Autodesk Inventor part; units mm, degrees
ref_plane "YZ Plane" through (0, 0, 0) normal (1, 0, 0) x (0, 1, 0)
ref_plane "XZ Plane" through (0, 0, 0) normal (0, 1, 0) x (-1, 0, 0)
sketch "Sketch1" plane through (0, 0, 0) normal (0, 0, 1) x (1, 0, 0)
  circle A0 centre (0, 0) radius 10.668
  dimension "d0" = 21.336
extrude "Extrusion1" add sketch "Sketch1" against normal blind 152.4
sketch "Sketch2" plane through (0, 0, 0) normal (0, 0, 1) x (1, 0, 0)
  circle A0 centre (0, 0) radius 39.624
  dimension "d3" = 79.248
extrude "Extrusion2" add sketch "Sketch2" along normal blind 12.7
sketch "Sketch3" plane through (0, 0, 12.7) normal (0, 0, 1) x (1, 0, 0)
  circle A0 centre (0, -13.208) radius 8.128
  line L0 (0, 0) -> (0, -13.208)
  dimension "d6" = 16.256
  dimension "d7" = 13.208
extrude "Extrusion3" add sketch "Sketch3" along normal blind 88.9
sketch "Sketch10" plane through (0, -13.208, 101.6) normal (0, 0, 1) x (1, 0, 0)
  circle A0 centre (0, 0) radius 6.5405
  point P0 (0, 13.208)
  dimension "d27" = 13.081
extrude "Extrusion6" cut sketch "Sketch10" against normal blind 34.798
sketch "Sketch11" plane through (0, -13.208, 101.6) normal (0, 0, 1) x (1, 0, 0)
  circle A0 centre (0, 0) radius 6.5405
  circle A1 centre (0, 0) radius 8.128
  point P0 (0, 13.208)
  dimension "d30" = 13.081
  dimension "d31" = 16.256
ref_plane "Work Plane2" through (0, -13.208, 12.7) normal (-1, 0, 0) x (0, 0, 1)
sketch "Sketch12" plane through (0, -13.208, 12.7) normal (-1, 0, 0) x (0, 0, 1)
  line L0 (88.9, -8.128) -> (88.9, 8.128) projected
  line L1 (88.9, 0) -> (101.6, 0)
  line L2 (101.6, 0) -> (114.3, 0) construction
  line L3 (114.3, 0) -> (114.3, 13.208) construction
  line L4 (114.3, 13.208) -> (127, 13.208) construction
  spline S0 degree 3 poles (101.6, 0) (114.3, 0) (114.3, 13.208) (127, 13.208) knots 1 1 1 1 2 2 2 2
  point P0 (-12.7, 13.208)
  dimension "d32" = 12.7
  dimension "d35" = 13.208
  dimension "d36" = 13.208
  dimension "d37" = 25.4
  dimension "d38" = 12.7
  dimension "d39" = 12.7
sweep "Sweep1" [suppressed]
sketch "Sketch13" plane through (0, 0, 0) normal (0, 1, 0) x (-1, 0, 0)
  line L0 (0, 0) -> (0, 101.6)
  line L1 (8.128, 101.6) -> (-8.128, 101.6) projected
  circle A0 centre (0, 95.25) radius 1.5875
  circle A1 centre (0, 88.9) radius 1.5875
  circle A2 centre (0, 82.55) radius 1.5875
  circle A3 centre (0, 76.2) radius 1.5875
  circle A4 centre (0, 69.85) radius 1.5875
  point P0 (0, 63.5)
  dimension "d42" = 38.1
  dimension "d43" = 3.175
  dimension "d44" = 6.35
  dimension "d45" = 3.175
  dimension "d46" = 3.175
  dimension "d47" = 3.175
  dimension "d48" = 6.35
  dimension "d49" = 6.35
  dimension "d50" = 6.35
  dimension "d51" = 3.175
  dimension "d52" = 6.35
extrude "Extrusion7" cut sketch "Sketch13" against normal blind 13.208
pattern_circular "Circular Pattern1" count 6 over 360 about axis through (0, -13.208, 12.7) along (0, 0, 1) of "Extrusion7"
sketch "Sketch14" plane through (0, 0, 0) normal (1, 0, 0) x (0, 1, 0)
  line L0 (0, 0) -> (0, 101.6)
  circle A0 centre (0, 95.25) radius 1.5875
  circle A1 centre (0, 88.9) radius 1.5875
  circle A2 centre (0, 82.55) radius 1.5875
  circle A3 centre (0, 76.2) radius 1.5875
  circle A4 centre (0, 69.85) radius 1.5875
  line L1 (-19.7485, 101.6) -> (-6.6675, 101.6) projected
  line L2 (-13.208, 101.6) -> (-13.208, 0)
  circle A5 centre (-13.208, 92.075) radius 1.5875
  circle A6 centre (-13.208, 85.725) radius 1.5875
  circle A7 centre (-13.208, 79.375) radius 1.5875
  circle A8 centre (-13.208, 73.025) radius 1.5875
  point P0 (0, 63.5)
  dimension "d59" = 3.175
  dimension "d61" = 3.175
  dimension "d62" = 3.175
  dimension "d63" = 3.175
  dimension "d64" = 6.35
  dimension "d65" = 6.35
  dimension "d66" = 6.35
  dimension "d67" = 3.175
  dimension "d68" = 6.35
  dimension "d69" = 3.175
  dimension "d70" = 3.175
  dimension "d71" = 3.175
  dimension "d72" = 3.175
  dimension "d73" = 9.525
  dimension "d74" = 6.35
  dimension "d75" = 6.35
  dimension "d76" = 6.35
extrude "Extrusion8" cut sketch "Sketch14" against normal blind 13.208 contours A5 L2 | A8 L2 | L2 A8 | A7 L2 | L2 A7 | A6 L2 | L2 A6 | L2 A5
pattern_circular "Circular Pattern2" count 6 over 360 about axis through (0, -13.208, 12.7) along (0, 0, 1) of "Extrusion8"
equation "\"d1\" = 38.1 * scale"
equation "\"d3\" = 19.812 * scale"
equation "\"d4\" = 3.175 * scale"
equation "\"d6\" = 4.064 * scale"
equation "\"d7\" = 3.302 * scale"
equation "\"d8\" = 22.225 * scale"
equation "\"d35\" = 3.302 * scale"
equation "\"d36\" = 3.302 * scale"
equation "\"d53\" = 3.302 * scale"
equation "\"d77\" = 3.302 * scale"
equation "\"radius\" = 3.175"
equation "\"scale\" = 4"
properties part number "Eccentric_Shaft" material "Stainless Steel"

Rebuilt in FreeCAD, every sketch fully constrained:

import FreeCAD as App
import Part
import Sketcher
from FreeCAD import Vector
Q = App.Units.Quantity

doc = App.newDocument("Part")
body = doc.addObject("PartDesign::Body", "Body")

# Sketch on XY plane
sketch1 = body.newObject("Sketcher::SketchObject", "Sketch")
sketch1.AttachmentSupport = (doc.getObject("XY_Plane"), [""])
sketch1.MapMode = "FlatFace"
sketch1.addGeometry(Part.Circle(Vector(0, 0, 0), Vector(0, 0, 1), 11), False)
sketch1.addConstraint(Sketcher.Constraint("Coincident", 0, 3, -1, 1))
sketch1.addConstraint(Sketcher.Constraint("Diameter", 0, Q("0.84 in")))
pad1 = body.newObject("PartDesign::Pad", "Pad")
pad1.Profile = sketch1
pad1.Length = Q("6 in")
pad1.Reversed = True

# Sketch on XY plane
sketch2 = body.newObject("Sketcher::SketchObject", "Sketch001")
sketch2.AttachmentSupport = (doc.getObject("XY_Plane"), [""])
sketch2.MapMode = "FlatFace"
sketch2.addGeometry(Part.Circle(Vector(0, 0, 0), Vector(0, 0, 1), 40), False)
sketch2.addConstraint(Sketcher.Constraint("Coincident", 0, 3, -1, 1))
sketch2.addConstraint(Sketcher.Constraint("Diameter", 0, Q("3.12 in")))
pad2 = body.newObject("PartDesign::Pad", "Pad001")
pad2.Profile = sketch2
pad2.Length = Q("0.5 in")

# Sketch on XY plane
sketch3 = body.newObject("Sketcher::SketchObject", "Sketch002")
sketch3.AttachmentSupport = (doc.getObject("XY_Plane"), [""])
sketch3.MapMode = "FlatFace"
sketch3.AttachmentOffset = App.Placement(Vector(0, 0, 0.5 * 25.4), App.Rotation())
sketch3.addGeometry(Part.Circle(Vector(0, -13, 0), Vector(0, 0, 1), 8), False)
sketch3.addConstraint(Sketcher.Constraint("PointOnObject", 0, 3, -2))
sketch3.addConstraint(Sketcher.Constraint("Diameter", 0, Q("0.64 in")))
sketch3.addConstraint(Sketcher.Constraint("DistanceY", 0, 3, -1, 1, Q("0.52 in")))
pad3 = body.newObject("PartDesign::Pad", "Pad002")
pad3.Profile = sketch3
pad3.Length = Q("3.5 in")

# Sketch on XY plane
sketch4 = body.newObject("Sketcher::SketchObject", "Sketch003")
sketch4.AttachmentSupport = (doc.getObject("XY_Plane"), [""])
sketch4.MapMode = "FlatFace"
sketch4.AttachmentOffset = App.Placement(Vector(0, 0, 4 * 25.4), App.Rotation())
sketch4.addGeometry(Part.Circle(Vector(0, -13, 0), Vector(0, 0, 1), 7), False)
sketch4.addConstraint(Sketcher.Constraint("PointOnObject", 0, 3, -2))
sketch4.addConstraint(Sketcher.Constraint("Diameter", 0, Q("0.515 in")))
sketch4.addConstraint(Sketcher.Constraint("DistanceY", 0, 3, -1, 1, Q("0.52 in")))
pocket1 = body.newObject("PartDesign::Pocket", "Pocket")
pocket1.Profile = sketch4
pocket1.Length = Q("1.37 in")

# Sketch on XZ plane
sketch5 = body.newObject("Sketcher::SketchObject", "Sketch004")
sketch5.AttachmentSupport = (doc.getObject("XZ_Plane"), [""])
sketch5.MapMode = "FlatFace"
sketch5.addGeometry(Part.Circle(Vector(0, 69.8, 0), Vector(0, 0, 1), 1.6), False)
sketch5.addGeometry(Part.Circle(Vector(0, 95.2, 0), Vector(0, 0, 1), 1.6), False)
sketch5.addGeometry(Part.Circle(Vector(0, 88.9, 0), Vector(0, 0, 1), 1.6), False)
sketch5.addGeometry(Part.Circle(Vector(0, 82.5, 0), Vector(0, 0, 1), 1.6), False)
sketch5.addGeometry(Part.Circle(Vector(0, 76.2, 0), Vector(0, 0, 1), 1.6), False)
sketch5.addConstraint(Sketcher.Constraint("Equal", 0, 1))
sketch5.addConstraint(Sketcher.Constraint("Equal", 1, 2))
sketch5.addConstraint(Sketcher.Constraint("Equal", 2, 3))
sketch5.addConstraint(Sketcher.Constraint("Equal", 3, 4))
sketch5.addConstraint(Sketcher.Constraint("PointOnObject", 0, 3, -2))
sketch5.addConstraint(Sketcher.Constraint("PointOnObject", 1, 3, -2))
sketch5.addConstraint(Sketcher.Constraint("PointOnObject", 2, 3, -2))
sketch5.addConstraint(Sketcher.Constraint("PointOnObject", 3, 3, -2))
sketch5.addConstraint(Sketcher.Constraint("PointOnObject", 4, 3, -2))
sketch5.addConstraint(Sketcher.Constraint("Diameter", 0, Q("0.125 in")))
sketch5.addConstraint(Sketcher.Constraint("DistanceY", 2, 3, 1, 3, Q("0.25 in")))
sketch5.addConstraint(Sketcher.Constraint("DistanceY", 3, 3, 2, 3, Q("0.25 in")))
sketch5.addConstraint(Sketcher.Constraint("DistanceY", 4, 3, 3, 3, Q("0.25 in")))
sketch5.addConstraint(Sketcher.Constraint("DistanceY", 0, 3, 4, 3, Q("0.25 in")))
sketch5.addConstraint(Sketcher.Constraint("DistanceY", -1, 1, 4, 3, Q("3 in")))
pocket2 = body.newObject("PartDesign::Pocket", "Pocket001")
pocket2.Profile = sketch5
pocket2.Length = Q("0.52 in")
pocket2.Reversed = True
doc.recompute()

datumline = body.newObject("PartDesign::Line", "DatumLine")
datumline.Placement = App.Placement(Vector(0, -13.208, 0), App.Rotation(Vector(0, 0, 1), Vector(0, 0, 1)))
polarpattern = body.newObject("PartDesign::PolarPattern", "PolarPattern")
polarpattern.Originals = [pocket2]
polarpattern.Axis = (datumline, [""])
polarpattern.Angle = 360
polarpattern.Occurrences = 6
body.Tip = polarpattern

# Sketch on YZ plane
sketch6 = body.newObject("Sketcher::SketchObject", "Sketch005")
sketch6.AttachmentSupport = (doc.getObject("YZ_Plane"), [""])
sketch6.MapMode = "FlatFace"
sketch6.addGeometry(Part.Circle(Vector(-13.2, 92.1, 0), Vector(0, 0, 1), 1.6), False)
sketch6.addGeometry(Part.Circle(Vector(-13.2, 73, 0), Vector(0, 0, 1), 1.6), False)
sketch6.addGeometry(Part.Circle(Vector(-13.2, 79.4, 0), Vector(0, 0, 1), 1.6), False)
sketch6.addGeometry(Part.Circle(Vector(-13.2, 85.7, 0), Vector(0, 0, 1), 1.6), False)
sketch6.addConstraint(Sketcher.Constraint("Equal", 0, 1))
sketch6.addConstraint(Sketcher.Constraint("Equal", 1, 2))
sketch6.addConstraint(Sketcher.Constraint("Equal", 2, 3))
sketch6.addConstraint(Sketcher.Constraint("Vertical", 0, 3, 1, 3))
sketch6.addConstraint(Sketcher.Constraint("Vertical", 1, 3, 2, 3))
sketch6.addConstraint(Sketcher.Constraint("Vertical", 2, 3, 3, 3))
sketch6.addConstraint(Sketcher.Constraint("Diameter", 0, Q("0.125 in")))
sketch6.addConstraint(Sketcher.Constraint("DistanceY", 1, 3, 2, 3, Q("0.25 in")))
sketch6.addConstraint(Sketcher.Constraint("DistanceY", 2, 3, 3, 3, Q("0.25 in")))
sketch6.addConstraint(Sketcher.Constraint("DistanceY", 3, 3, 0, 3, Q("0.25 in")))
sketch6.addConstraint(Sketcher.Constraint("DistanceX", 0, 3, -1, 1, Q("0.52 in")))
sketch6.addConstraint(Sketcher.Constraint("DistanceY", -1, 1, 0, 3, Q("3.625 in")))
pocket3 = body.newObject("PartDesign::Pocket", "Pocket002")
pocket3.Profile = sketch6
pocket3.Length = Q("0.52 in")
doc.recompute()

datumline2 = body.newObject("PartDesign::Line", "DatumLine001")
datumline2.Placement = App.Placement(Vector(0, -13.208, 0), App.Rotation(Vector(0, 0, 1), Vector(0, 0, 1)))
polarpattern2 = body.newObject("PartDesign::PolarPattern", "PolarPattern001")
polarpattern2.Originals = [pocket3]
polarpattern2.Axis = (datumline2, [""])
polarpattern2.Angle = 360
polarpattern2.Occurrences = 6
body.Tip = polarpattern2

doc.recompute()
